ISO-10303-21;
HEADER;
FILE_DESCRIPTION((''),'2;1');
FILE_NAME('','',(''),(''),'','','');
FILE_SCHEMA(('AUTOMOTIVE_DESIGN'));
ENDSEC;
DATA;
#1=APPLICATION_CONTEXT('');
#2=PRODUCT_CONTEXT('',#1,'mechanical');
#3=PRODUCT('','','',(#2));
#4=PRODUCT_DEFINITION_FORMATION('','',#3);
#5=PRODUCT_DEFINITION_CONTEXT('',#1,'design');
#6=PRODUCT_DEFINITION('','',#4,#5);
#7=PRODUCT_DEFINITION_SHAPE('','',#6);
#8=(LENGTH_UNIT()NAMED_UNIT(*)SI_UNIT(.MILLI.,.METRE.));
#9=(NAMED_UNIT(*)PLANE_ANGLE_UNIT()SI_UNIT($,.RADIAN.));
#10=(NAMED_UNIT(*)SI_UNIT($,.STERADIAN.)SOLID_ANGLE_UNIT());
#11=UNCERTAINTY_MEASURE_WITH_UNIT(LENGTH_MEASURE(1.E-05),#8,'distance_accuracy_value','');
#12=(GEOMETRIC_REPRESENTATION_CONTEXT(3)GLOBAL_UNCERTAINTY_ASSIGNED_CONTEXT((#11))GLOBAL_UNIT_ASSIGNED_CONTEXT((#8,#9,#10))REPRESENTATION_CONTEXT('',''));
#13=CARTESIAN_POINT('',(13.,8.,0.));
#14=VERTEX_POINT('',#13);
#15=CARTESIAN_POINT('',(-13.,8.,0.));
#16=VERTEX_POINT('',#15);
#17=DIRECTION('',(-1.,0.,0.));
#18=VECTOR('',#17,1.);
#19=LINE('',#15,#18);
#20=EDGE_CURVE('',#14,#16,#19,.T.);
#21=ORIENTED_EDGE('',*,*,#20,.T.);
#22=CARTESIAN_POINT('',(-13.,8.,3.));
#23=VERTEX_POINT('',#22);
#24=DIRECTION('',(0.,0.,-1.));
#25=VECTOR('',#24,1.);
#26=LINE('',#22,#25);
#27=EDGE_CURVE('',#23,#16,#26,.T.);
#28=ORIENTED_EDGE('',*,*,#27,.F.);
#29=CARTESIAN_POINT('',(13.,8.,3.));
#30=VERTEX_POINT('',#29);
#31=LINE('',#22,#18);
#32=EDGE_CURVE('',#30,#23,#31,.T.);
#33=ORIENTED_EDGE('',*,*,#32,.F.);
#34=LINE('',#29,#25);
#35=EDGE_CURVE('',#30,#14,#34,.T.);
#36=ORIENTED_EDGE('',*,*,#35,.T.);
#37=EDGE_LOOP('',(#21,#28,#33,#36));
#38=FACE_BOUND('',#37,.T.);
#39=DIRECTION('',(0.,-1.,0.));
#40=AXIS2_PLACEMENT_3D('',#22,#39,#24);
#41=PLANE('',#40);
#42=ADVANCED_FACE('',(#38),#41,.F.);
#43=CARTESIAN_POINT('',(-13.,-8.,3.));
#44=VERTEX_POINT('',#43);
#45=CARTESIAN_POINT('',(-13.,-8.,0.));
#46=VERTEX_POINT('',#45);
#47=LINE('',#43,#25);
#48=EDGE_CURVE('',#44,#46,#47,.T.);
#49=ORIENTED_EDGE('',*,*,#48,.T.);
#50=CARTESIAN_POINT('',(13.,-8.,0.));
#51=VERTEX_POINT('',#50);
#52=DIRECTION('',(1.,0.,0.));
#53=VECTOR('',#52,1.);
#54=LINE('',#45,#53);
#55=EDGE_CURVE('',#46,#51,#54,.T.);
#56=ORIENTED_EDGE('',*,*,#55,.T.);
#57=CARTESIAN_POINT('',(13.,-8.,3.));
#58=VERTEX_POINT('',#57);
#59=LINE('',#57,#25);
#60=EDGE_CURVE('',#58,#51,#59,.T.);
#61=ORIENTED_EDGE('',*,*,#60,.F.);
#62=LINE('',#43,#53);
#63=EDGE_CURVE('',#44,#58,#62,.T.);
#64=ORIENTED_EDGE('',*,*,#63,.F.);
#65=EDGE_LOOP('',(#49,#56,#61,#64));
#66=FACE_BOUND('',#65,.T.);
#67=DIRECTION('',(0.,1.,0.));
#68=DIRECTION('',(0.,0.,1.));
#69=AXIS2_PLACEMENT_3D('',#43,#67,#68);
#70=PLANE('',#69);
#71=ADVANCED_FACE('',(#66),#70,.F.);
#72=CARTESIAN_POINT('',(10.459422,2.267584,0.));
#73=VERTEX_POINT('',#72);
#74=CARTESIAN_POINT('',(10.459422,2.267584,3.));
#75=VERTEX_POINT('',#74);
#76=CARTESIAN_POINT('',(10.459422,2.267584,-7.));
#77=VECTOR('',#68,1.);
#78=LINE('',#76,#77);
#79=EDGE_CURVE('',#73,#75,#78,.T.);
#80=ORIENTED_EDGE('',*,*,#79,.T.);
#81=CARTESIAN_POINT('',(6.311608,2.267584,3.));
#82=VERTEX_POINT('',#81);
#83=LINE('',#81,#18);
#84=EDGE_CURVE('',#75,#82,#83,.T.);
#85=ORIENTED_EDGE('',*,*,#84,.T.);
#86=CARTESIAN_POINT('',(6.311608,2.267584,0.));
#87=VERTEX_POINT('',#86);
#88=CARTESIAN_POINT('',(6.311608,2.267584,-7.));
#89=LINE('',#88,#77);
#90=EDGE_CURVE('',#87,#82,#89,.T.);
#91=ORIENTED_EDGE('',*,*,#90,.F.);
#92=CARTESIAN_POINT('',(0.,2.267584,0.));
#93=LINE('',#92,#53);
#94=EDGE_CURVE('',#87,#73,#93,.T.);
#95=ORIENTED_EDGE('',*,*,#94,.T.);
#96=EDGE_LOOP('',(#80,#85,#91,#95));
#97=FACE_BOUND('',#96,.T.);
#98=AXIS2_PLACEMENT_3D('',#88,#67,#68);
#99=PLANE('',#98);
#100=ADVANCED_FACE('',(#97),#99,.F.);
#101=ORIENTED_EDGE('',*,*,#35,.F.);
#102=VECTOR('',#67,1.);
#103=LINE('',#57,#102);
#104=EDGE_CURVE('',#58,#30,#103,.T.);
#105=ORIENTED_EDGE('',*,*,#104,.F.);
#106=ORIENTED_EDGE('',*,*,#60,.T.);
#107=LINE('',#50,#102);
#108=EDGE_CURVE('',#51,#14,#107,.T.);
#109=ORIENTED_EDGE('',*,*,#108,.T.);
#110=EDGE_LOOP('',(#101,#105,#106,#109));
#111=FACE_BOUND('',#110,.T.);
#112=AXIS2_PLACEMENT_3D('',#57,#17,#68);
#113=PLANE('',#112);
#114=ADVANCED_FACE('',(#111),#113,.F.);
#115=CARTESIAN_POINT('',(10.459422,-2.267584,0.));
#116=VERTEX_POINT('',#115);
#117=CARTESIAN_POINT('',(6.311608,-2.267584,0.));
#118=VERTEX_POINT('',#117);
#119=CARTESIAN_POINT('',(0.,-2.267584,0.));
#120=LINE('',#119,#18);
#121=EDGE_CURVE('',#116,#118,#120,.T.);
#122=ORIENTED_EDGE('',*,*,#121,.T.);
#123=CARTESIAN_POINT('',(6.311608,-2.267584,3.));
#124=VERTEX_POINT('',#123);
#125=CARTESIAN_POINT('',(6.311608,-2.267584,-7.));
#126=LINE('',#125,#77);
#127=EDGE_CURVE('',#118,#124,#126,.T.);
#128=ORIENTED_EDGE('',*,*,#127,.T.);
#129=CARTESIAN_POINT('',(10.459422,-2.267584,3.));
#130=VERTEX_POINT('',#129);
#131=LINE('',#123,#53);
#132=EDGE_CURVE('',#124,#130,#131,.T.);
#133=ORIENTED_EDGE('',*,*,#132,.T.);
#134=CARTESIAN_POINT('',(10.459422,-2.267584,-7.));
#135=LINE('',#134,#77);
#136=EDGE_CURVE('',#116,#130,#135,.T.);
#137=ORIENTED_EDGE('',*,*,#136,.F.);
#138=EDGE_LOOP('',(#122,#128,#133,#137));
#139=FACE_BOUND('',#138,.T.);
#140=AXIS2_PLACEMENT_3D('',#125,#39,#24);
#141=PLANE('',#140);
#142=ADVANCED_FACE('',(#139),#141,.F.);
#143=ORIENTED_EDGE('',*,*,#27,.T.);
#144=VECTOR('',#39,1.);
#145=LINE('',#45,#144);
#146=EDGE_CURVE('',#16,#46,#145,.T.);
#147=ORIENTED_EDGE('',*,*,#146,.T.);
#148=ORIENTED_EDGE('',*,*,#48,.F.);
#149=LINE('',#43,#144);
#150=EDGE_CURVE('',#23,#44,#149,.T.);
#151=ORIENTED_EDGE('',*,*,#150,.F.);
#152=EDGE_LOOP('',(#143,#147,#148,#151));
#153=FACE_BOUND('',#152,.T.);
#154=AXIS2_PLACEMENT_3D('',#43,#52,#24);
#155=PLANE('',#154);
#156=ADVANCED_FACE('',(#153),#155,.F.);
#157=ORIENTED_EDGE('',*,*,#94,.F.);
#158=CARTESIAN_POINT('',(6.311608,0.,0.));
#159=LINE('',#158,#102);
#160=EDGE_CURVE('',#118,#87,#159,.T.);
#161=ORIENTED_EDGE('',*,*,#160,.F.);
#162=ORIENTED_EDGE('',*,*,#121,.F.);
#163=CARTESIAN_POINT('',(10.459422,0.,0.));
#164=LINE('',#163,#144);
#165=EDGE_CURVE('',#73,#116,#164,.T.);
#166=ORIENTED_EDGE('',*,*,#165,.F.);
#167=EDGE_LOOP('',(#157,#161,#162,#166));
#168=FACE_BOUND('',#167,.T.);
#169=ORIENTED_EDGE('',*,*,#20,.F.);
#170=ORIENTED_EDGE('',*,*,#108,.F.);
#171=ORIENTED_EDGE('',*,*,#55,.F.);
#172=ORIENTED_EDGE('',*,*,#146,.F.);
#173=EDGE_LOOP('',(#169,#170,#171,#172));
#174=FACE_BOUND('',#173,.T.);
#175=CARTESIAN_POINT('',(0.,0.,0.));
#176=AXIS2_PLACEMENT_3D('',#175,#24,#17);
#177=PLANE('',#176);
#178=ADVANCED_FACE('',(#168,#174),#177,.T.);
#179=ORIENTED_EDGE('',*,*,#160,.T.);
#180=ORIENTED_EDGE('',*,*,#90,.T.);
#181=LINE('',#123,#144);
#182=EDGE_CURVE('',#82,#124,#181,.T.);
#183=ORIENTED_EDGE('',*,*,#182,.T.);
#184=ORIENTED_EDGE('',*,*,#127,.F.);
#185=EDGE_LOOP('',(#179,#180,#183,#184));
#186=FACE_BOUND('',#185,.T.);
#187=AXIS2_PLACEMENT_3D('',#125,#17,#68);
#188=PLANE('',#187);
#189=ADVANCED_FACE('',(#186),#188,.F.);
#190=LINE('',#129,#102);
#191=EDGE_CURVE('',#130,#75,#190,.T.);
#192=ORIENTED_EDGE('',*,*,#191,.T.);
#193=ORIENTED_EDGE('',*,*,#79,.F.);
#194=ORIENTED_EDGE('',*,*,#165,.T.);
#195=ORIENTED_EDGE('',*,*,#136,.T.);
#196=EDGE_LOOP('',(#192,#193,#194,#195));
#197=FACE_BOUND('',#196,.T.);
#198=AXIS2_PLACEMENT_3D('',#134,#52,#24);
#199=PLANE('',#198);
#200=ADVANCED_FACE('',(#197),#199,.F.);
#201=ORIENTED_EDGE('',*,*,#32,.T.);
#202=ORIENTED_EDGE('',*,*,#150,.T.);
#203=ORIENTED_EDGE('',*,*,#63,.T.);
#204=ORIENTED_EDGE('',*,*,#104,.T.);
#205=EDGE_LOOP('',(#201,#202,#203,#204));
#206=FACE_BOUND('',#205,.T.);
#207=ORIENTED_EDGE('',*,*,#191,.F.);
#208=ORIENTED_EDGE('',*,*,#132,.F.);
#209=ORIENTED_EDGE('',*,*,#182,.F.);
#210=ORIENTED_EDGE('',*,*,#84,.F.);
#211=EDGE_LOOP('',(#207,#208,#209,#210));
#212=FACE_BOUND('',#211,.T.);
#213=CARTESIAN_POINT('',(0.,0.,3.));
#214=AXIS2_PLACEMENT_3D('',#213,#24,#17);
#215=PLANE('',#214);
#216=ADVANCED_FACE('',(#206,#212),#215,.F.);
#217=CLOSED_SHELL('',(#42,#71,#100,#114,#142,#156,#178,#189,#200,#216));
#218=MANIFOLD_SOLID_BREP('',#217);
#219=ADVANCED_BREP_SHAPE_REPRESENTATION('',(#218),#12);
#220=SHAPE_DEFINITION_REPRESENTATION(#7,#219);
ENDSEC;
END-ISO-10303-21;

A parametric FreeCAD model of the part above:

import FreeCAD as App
import Part
import Sketcher

V = App.Vector


def add_polygon(sketch, points):
    """Adds a closed chain of lines whose ends are joined by coincident constraints."""
    first, n = sketch.GeometryCount, len(points)
    for a, b in zip(points, points[1:] + points[:1]):
        sketch.addGeometry(Part.LineSegment(App.Vector(*a, 0), App.Vector(*b, 0)), False)
    for i in range(n):
        sketch.addConstraint(Sketcher.Constraint("Coincident", first + i, 2, first + (i + 1) % n, 1))

doc = App.newDocument("Part")
body = doc.addObject("PartDesign::Body", "Body")

sketch1 = body.newObject("Sketcher::SketchObject", "Sketch")
sketch1.AttachmentSupport = (doc.getObject("XY_Plane"), [""])
sketch1.MapMode = "FlatFace"
add_polygon(sketch1, [(-13, 8), (-13, -8), (13, -8), (13, 8)])
sketch1.addGeometry(Part.Circle(V(8.4, 0, 0), V(0, 0, 1), 2.1), False)
sketch1.addConstraint(Sketcher.Constraint("Vertical", 0))
sketch1.addConstraint(Sketcher.Constraint("Horizontal", 1))
sketch1.addConstraint(Sketcher.Constraint("Vertical", 2))
sketch1.addConstraint(Sketcher.Constraint("Horizontal", 3))
sketch1.addConstraint(Sketcher.Constraint("Symmetric", 0, 2, 2, 2, -1, 1))
sketch1.addConstraint(Sketcher.Constraint("PointOnObject", 4, 3, -1))
sketch1.addConstraint(Sketcher.Constraint("DistanceX", 1, 1, 1, 2, 26.0))
sketch1.addConstraint(Sketcher.Constraint("DistanceY", 0, 2, 0, 1, 16.0))
sketch1.addConstraint(Sketcher.Constraint("Diameter", 4, 4.144681))
sketch1.addConstraint(Sketcher.Constraint("DistanceX", -1, 1, 4, 3, 8.385515))
pad1 = body.newObject("PartDesign::Pad", "Pad")
pad1.Profile = sketch1
pad1.Length = 3

sketch2 = body.newObject("Sketcher::SketchObject", "Sketch001")
sketch2.AttachmentSupport = (doc.getObject("XY_Plane"), [""])
sketch2.MapMode = "FlatFace"
sketch2.AttachmentOffset = App.Placement(V(0, 0, 3), App.Rotation())
add_polygon(sketch2, [(6.3, 2.3), (6.3, -2.3), (10.5, -2.3), (10.5, 2.3)])
sketch2.addConstraint(Sketcher.Constraint("Vertical", 0))
sketch2.addConstraint(Sketcher.Constraint("Horizontal", 1))
sketch2.addConstraint(Sketcher.Constraint("Vertical", 2))
sketch2.addConstraint(Sketcher.Constraint("Horizontal", 3))
sketch2.addConstraint(Sketcher.Constraint("DistanceX", 1, 1, 1, 2, 4.147814))
sketch2.addConstraint(Sketcher.Constraint("DistanceY", 0, 2, 0, 1, 4.535168))
sketch2.addConstraint(Sketcher.Constraint("DistanceX", -1, 1, 0, 2, 6.311608))
sketch2.addConstraint(Sketcher.Constraint("DistanceY", 0, 2, -1, 1, 2.267584))
pocket1 = body.newObject("PartDesign::Pocket", "Pocket")
pocket1.Profile = sketch2
pocket1.Length = 10

doc.recompute()
